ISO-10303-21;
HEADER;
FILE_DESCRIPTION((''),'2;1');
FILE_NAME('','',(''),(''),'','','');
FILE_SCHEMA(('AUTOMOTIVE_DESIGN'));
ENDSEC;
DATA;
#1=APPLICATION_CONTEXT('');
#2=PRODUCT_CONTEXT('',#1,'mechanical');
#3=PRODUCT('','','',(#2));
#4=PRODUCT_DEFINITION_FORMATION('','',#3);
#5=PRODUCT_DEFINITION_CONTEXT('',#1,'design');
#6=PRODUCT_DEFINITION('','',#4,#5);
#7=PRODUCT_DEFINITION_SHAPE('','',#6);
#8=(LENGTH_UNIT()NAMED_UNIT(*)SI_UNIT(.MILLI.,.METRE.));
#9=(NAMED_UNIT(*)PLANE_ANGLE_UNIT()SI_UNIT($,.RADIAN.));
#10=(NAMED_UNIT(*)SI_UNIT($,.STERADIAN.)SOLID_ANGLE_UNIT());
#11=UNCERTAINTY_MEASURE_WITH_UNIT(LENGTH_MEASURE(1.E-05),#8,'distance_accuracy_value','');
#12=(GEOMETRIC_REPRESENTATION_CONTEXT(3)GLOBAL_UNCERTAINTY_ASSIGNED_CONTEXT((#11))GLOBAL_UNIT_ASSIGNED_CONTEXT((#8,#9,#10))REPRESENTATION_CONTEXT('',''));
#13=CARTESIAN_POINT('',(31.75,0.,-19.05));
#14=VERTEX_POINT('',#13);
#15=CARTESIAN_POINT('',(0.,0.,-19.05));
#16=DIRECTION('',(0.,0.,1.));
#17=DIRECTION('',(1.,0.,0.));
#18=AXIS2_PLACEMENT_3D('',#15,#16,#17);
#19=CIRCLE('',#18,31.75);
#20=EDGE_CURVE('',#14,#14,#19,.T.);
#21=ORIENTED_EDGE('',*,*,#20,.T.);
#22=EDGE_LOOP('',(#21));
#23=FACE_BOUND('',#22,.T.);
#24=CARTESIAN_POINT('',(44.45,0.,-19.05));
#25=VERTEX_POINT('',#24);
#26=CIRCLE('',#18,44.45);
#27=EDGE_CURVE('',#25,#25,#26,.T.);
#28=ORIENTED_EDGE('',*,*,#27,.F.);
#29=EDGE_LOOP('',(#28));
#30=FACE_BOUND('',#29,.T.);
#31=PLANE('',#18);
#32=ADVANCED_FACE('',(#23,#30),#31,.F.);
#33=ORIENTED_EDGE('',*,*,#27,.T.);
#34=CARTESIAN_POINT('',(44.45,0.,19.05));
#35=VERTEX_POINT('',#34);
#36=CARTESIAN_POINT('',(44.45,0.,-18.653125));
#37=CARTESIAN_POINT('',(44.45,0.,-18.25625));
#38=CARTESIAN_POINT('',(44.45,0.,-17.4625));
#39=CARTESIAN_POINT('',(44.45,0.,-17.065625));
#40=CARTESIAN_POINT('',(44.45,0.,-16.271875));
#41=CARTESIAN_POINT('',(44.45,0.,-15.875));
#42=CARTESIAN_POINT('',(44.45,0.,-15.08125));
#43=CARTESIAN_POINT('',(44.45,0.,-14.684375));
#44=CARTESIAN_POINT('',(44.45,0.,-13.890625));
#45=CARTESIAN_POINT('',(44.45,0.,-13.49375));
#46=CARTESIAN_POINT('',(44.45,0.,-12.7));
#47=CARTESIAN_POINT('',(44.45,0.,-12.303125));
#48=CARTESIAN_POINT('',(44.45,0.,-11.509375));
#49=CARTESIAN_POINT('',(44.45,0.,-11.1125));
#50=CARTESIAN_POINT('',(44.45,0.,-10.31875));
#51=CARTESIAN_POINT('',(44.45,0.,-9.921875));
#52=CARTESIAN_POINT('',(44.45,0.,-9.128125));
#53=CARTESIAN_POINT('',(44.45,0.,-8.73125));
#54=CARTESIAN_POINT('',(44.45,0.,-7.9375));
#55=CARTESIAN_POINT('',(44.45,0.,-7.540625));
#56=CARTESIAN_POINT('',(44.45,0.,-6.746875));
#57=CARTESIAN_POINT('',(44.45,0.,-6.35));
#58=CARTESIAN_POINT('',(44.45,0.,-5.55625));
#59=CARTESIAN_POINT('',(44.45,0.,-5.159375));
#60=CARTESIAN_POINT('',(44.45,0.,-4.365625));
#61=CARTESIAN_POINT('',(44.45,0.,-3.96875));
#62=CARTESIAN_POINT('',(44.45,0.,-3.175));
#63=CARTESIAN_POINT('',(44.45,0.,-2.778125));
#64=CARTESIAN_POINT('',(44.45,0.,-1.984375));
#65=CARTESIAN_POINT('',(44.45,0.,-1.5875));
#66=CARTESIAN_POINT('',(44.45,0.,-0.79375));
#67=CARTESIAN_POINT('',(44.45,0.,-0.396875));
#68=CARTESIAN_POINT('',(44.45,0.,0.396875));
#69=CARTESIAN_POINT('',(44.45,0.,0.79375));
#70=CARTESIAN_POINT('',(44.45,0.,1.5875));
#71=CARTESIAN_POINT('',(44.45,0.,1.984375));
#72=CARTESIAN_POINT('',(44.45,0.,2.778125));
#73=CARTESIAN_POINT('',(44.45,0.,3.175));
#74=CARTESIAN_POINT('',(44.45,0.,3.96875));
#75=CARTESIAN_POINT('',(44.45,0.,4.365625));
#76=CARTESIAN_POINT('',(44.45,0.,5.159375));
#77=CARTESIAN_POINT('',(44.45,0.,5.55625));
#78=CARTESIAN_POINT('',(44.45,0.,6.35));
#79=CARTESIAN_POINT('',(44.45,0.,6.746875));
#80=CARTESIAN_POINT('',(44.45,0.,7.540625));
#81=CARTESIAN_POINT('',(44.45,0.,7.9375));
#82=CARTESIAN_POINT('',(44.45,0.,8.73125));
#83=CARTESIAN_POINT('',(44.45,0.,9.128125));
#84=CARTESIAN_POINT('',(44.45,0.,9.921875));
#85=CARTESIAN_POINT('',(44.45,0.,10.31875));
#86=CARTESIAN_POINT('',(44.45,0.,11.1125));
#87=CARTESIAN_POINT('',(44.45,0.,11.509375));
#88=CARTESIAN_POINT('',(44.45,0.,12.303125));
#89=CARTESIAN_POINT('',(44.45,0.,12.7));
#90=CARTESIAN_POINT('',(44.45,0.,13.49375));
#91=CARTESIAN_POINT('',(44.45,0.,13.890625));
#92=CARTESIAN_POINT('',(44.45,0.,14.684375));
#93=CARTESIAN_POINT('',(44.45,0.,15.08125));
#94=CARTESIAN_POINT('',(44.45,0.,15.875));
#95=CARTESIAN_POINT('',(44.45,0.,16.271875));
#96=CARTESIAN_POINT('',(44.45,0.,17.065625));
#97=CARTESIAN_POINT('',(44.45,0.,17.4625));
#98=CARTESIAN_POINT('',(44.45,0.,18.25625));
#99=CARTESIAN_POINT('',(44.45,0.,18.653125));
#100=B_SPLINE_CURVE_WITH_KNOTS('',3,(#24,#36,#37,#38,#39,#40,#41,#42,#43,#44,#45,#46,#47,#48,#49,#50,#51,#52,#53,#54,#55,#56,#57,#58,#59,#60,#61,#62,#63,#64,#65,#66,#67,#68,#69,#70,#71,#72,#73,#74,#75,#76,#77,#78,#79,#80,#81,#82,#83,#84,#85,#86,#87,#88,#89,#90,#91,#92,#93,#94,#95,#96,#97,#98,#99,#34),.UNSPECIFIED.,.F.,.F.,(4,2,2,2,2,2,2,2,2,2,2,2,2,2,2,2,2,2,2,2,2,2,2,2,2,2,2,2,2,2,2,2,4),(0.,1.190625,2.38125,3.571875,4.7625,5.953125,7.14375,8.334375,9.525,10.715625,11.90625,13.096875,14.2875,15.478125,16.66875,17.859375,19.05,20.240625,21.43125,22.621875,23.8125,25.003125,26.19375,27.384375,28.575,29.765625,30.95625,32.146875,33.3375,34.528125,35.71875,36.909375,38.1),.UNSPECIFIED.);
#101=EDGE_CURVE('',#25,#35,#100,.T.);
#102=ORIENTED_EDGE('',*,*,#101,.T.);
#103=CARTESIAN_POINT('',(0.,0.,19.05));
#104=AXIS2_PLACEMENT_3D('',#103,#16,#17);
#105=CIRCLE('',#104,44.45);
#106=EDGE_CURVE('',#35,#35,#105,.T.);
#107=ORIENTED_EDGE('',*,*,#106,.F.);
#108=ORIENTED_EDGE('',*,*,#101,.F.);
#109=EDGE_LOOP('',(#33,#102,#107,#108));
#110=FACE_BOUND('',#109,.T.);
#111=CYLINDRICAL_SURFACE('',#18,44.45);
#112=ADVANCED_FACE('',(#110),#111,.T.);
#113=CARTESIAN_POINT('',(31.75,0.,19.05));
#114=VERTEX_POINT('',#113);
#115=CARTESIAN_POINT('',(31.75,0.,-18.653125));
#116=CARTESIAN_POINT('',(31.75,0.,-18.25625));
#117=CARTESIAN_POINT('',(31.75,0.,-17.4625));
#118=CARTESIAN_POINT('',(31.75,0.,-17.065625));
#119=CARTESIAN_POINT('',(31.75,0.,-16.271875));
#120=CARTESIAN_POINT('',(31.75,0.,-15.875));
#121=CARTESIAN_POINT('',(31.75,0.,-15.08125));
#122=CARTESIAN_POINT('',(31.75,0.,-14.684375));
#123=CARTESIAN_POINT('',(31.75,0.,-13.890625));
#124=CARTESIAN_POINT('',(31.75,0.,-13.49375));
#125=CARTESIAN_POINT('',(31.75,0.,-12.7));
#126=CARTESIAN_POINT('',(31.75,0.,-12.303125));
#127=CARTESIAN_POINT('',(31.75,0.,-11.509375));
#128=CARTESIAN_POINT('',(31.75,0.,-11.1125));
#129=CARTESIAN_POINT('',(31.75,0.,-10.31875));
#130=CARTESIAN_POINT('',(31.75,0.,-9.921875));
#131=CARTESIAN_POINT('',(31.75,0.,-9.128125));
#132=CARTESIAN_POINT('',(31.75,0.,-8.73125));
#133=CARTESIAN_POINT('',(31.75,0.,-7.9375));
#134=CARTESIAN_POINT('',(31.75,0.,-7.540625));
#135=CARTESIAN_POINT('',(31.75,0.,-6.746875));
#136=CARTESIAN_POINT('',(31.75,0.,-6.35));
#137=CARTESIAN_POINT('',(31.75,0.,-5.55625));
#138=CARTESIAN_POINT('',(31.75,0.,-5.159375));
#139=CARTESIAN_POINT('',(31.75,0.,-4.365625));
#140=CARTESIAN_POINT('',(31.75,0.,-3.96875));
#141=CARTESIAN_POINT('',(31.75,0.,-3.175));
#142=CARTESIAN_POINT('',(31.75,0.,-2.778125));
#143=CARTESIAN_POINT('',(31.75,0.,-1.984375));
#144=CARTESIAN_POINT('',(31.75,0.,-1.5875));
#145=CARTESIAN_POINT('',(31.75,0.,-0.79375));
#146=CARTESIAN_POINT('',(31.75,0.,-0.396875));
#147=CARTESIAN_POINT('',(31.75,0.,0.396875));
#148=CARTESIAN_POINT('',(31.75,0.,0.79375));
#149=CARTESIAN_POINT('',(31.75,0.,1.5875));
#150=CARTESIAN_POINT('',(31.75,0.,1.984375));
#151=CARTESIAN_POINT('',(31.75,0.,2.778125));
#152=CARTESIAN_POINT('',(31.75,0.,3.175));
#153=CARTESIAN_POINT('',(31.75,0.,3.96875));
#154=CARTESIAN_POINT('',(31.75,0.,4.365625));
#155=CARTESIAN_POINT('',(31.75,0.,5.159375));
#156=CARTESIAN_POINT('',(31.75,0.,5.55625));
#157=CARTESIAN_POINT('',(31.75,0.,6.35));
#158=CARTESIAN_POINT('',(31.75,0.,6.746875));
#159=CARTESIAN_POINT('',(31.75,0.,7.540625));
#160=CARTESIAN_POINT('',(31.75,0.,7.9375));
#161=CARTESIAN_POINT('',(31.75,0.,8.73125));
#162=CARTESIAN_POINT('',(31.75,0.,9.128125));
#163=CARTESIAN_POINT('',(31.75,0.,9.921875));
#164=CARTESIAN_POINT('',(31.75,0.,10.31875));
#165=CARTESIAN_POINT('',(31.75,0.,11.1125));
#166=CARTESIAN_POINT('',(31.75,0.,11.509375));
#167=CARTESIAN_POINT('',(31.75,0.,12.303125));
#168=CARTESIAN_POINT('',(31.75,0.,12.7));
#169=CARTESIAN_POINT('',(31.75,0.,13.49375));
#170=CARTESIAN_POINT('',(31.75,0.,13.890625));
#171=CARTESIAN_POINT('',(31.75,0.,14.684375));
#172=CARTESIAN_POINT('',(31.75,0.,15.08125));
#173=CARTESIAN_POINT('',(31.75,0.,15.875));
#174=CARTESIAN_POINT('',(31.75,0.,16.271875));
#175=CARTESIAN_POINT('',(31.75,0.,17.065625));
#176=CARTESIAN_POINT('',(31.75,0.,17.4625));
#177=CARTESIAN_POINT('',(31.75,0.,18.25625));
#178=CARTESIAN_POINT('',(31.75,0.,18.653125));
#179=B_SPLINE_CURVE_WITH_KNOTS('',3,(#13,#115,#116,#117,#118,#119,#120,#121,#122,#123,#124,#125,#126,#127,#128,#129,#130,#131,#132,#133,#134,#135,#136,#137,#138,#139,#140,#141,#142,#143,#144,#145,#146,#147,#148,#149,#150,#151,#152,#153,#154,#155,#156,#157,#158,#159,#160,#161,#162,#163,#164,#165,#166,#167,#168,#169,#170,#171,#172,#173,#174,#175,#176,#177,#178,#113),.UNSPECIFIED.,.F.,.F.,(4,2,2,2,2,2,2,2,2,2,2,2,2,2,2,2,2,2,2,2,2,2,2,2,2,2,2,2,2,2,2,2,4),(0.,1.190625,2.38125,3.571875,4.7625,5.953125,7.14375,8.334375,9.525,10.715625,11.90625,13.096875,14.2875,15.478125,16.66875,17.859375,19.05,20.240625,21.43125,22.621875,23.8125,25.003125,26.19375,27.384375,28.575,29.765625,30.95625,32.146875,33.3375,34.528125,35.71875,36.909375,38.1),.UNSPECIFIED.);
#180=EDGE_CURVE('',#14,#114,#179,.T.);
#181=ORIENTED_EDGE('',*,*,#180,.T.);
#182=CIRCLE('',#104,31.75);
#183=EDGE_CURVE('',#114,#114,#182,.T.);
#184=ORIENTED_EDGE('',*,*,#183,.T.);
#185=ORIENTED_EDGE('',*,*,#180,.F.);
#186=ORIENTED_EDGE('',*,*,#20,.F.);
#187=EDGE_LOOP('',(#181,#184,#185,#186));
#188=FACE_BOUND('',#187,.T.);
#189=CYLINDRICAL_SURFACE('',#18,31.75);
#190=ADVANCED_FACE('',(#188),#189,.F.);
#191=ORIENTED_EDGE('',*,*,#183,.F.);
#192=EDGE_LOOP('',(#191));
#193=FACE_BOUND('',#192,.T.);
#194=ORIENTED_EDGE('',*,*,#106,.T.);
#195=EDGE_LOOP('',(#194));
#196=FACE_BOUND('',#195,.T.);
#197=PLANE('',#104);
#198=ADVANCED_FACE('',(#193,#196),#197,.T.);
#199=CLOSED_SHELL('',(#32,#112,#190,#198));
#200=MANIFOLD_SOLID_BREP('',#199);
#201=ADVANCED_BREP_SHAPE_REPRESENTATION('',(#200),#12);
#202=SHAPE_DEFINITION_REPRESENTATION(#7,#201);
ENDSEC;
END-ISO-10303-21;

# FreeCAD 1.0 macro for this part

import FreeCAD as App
import Part
import Sketcher
Q = App.Units.Quantity

doc = App.newDocument("Part")
body = doc.addObject("PartDesign::Body", "Body")

sketch1 = body.newObject("Sketcher::SketchObject", "Sketch")
sketch1.AttachmentSupport = (doc.getObject("XY_Plane"), [""])
sketch1.MapMode = "FlatFace"
sketch1.AttachmentOffset = App.Placement(App.Vector(0, 0, 0.75 * 25.4), App.Rotation())
sketch1.addGeometry([
    Part.Circle(App.Vector(0, 0, 0), App.Vector(0, 0, 1), 44),
    Part.Circle(App.Vector(0, 0, 0), App.Vector(0, 0, 1), 32),
], False)
sketch1.addConstraint([
    Sketcher.Constraint("Coincident", 0, 3, -1, 1),
    Sketcher.Constraint("Coincident", 1, 3, -1, 1),
    Sketcher.Constraint("Diameter", 0, Q("3.5 in")),
    Sketcher.Constraint("Diameter", 1, Q("2.5 in")),
])
pad1 = body.newObject("PartDesign::Pad", "Pad")
pad1.Profile = sketch1
pad1.Length = Q("1.5 in")
pad1.Reversed = True

doc.recompute()
